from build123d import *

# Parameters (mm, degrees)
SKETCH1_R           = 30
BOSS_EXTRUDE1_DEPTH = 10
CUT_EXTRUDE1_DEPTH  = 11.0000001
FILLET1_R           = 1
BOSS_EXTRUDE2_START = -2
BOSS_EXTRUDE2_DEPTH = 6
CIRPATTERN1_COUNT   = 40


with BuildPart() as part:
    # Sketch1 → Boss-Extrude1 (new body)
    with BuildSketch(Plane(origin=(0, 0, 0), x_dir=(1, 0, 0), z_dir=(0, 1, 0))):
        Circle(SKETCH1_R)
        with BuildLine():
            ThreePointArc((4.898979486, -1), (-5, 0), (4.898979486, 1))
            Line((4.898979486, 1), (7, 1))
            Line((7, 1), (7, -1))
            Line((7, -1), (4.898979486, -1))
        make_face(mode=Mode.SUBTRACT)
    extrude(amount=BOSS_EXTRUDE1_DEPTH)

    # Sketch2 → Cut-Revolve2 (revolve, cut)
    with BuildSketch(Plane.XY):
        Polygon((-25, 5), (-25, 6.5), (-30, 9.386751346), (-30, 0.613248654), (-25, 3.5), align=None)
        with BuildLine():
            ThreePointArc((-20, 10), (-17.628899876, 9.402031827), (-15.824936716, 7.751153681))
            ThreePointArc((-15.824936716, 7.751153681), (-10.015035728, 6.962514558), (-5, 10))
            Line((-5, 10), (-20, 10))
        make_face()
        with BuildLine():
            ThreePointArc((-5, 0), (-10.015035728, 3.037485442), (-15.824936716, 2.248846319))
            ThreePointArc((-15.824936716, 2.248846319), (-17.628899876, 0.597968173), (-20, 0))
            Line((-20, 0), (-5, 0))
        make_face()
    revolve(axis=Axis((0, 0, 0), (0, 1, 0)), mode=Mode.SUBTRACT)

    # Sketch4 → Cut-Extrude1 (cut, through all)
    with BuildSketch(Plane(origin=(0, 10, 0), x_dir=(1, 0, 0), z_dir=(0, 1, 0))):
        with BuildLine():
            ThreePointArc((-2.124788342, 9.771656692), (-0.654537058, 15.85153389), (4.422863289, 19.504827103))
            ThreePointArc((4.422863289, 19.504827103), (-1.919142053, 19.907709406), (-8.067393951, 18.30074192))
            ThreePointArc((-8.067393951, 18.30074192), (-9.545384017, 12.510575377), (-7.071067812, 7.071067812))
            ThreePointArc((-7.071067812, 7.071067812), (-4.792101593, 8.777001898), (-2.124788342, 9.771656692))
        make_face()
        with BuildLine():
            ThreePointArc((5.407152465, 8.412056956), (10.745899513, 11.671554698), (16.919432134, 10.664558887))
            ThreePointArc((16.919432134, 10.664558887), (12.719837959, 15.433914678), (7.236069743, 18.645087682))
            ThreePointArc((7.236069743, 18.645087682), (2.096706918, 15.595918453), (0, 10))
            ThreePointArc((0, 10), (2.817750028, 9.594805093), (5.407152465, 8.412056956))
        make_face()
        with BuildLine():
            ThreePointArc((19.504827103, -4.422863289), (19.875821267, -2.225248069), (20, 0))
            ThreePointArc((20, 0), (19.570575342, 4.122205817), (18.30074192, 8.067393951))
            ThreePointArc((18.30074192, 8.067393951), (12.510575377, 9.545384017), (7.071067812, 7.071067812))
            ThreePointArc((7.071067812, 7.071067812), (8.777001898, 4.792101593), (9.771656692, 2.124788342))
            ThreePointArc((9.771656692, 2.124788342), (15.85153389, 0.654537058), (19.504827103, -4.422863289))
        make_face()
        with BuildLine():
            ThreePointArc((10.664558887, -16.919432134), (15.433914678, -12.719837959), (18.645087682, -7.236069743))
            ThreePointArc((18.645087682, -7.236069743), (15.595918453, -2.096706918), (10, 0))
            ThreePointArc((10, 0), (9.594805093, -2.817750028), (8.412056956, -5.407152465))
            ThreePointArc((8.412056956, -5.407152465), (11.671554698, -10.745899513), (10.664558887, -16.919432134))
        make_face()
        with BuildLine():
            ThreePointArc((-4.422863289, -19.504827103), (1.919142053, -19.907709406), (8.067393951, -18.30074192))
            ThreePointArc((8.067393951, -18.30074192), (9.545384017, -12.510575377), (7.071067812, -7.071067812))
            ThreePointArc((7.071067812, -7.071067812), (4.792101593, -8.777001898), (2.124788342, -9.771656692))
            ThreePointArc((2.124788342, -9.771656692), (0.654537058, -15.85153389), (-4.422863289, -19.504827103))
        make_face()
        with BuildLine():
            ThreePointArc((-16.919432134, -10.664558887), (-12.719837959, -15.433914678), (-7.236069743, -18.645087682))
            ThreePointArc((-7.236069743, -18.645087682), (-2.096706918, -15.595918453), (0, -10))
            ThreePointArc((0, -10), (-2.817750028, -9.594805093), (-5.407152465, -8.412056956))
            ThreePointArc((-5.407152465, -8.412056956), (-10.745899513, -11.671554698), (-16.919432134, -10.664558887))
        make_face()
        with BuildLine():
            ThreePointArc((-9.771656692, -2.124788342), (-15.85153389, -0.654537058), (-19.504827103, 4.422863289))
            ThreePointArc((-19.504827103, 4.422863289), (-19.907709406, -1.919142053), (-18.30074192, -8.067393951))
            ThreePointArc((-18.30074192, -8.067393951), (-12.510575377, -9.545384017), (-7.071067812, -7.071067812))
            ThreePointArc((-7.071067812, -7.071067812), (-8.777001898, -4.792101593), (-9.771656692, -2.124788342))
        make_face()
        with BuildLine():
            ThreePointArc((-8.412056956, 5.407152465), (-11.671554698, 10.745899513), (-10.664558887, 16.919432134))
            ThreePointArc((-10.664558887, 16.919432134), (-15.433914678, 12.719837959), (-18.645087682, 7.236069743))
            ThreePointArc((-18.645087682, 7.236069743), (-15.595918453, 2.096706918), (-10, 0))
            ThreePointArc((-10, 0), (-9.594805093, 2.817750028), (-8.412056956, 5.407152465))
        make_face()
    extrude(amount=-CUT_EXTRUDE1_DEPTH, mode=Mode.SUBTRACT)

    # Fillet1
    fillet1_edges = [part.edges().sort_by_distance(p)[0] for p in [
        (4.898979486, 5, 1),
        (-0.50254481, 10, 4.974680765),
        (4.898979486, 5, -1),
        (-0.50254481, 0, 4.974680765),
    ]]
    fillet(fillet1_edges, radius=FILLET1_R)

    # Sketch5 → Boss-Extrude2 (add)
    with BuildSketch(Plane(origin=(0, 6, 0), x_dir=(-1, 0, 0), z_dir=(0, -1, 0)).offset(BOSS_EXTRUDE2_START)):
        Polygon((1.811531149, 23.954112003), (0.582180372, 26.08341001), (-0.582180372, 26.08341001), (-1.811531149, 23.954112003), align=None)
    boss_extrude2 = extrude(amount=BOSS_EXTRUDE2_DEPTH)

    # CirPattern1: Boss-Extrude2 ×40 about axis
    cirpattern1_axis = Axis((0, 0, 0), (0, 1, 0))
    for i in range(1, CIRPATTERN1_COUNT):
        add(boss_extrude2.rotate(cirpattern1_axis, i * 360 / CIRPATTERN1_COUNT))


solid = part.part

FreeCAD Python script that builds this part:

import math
import FreeCAD as App
import Part
import Sketcher
from FreeCAD import Vector
Q = App.Units.Quantity


def edges_at(feature, points):
    """Names of the edges that pass closest to the given points."""
    edges = feature.Shape.Edges
    near = lambda p: min(range(len(edges)), key=lambda i: edges[i].distToShape(Part.Vertex(*p))[0])
    return sorted({f"Edge{near(p) + 1}" for p in points})


def add_polygon(sketch, points):
    """Adds a closed chain of lines whose ends are joined by coincident constraints."""
    first, n = sketch.GeometryCount, len(points)
    for a, b in zip(points, points[1:] + points[:1]):
        sketch.addGeometry(Part.LineSegment(App.Vector(*a, 0), App.Vector(*b, 0)), False)
    for i in range(n):
        sketch.addConstraint(Sketcher.Constraint("Coincident", first + i, 2, first + (i + 1) % n, 1))

doc = App.newDocument("Part")
body = doc.addObject("PartDesign::Body", "Body")

# Sketch on XZ plane
sketch1 = body.newObject("Sketcher::SketchObject", "Sketch")
sketch1.AttachmentSupport = (doc.getObject("XZ_Plane"), [""])
sketch1.MapMode = "FlatFace"
sketch1.addGeometry([
    Part.Circle(Vector(0, 0, 0), Vector(0, 0, 1), 30),  # 0
    Part.LineSegment(Vector(7, 1, 0), Vector(4.9, 1, 0)),  # 1
    Part.ArcOfCircle(Part.Circle(Vector(0, 0, 0), Vector(0, 0, 1), 5), math.radians(12), math.radians(348)),  # 2
    Part.LineSegment(Vector(4.9, -1, 0), Vector(7, -1, 0)),  # 3
    Part.LineSegment(Vector(7, -1, 0), Vector(7, 1, 0)),  # 4
], False)
sketch1.addConstraint([
    Sketcher.Constraint("Coincident", 1, 2, 2, 1),
    Sketcher.Constraint("Coincident", 2, 2, 3, 1),
    Sketcher.Constraint("Coincident", 3, 2, 4, 1),
    Sketcher.Constraint("Coincident", 4, 2, 1, 1),
    Sketcher.Constraint("Horizontal", 1),
    Sketcher.Constraint("Horizontal", 3),
    Sketcher.Constraint("Vertical", 4),
    Sketcher.Constraint("Coincident", 0, 3, -1, 1),
    Sketcher.Constraint("Coincident", 2, 3, -1, 1),
    Sketcher.Constraint("Vertical", 1, 2, 2, 2),
    Sketcher.Constraint("Diameter", 0, 60.0),
    Sketcher.Constraint("Radius", 2, 5.0),
    Sketcher.Constraint("DistanceY", 4, 1, 4, 2, 2.0),
    Sketcher.Constraint("DistanceX", -1, 1, 3, 2, 7.0),
])
pad1 = body.newObject("PartDesign::Pad", "Pad")
pad1.Profile = sketch1
pad1.Length = 10
pad1.Reversed = True

# Sketch on XY plane
sketch2 = body.newObject("Sketcher::SketchObject", "Sketch001")
sketch2.AttachmentSupport = (doc.getObject("XY_Plane"), [""])
sketch2.MapMode = "FlatFace"
add_polygon(sketch2, [(-25, 6.5), (-30, 9.4), (-30, 0.6), (-25, 3.5)])  # lines 0-3
sketch2.addGeometry(Part.ArcOfCircle(Part.Circle(Vector(-20, 5, 0), Vector(0, 0, 1), 5), math.radians(33), math.radians(90)), False)  # 4
sketch2.addGeometry(Part.ArcOfCircle(Part.Circle(Vector(-11.8, 15.6, 0), Vector(0, 0, 1), 8.8), math.radians(-117), math.radians(-39)), False)  # 5
sketch2.addGeometry(Part.LineSegment(Vector(-5, 10, 0), Vector(-20, 10, 0)), False)  # 6
sketch2.addGeometry(Part.ArcOfCircle(Part.Circle(Vector(-11.8, -5.6, 0), Vector(0, 0, 1), 8.8), math.radians(39), math.radians(117)), False)  # 7
sketch2.addGeometry(Part.ArcOfCircle(Part.Circle(Vector(-20, 5, 0), Vector(0, 0, 1), 5), math.radians(-90), math.radians(-33)), False)  # 8
sketch2.addGeometry(Part.LineSegment(Vector(-20, 0, 0), Vector(-5, 0, 0)), False)  # 9
sketch2.addConstraint([
    Sketcher.Constraint("Coincident", 4, 1, 5, 1),
    Sketcher.Constraint("Coincident", 5, 2, 6, 1),
    Sketcher.Constraint("Tangent", 6, 2, 4, 2),
    Sketcher.Constraint("Coincident", 7, 2, 8, 2),
    Sketcher.Constraint("Tangent", 8, 1, 9, 1),
    Sketcher.Constraint("Coincident", 9, 2, 7, 1),
    Sketcher.Constraint("Vertical", 1),
    Sketcher.Constraint("Vertical", 3),
    Sketcher.Constraint("Horizontal", 6),
    Sketcher.Constraint("Horizontal", 9),
    Sketcher.Constraint("Coincident", 8, 3, 4, 3),
    Sketcher.Constraint("Equal", 5, 7),
    Sketcher.Constraint("Equal", 4, 8),
    Sketcher.Constraint("PointOnObject", 8, 1, -1),
    Sketcher.Constraint("Vertical", 5, 3, 7, 3),
    Sketcher.Constraint("Vertical", 4, 1, 7, 2),
    Sketcher.Constraint("Equal", 0, 2),
    Sketcher.Constraint("Radius", 4, 5.0),
    Sketcher.Constraint("DistanceX", 6, 2, 6, 1, 15.0),
    Sketcher.Constraint("DistanceY", 3, 1, 3, 2, 3.0),
    Sketcher.Constraint("Angle", 0, Q("150 deg")),
    Sketcher.Constraint("DistanceX", 4, 3, -1, 1, 20.0),
    Sketcher.Constraint("DistanceX", 0, 2, -1, 1, 30.0),
    Sketcher.Constraint("DistanceX", 2, 2, -1, 1, 25.0),
    Sketcher.Constraint("DistanceY", -1, 1, 2, 2, 3.5),
    Sketcher.Constraint("Radius", 5, 8.796956),
    Sketcher.Constraint("DistanceX", 5, 3, -1, 1, 11.804371),
])
groove = body.newObject("PartDesign::Groove", "Groove")
groove.Profile = sketch2
groove.ReferenceAxis = (sketch2, ["V_Axis"])
groove.Angle = 360

# Sketch on XZ plane
sketch3 = body.newObject("Sketcher::SketchObject", "Sketch002")
sketch3.AttachmentSupport = (doc.getObject("XZ_Plane"), [""])
sketch3.MapMode = "FlatFace"
sketch3.AttachmentOffset = App.Placement(Vector(0, 0, -10), App.Rotation())
sketch3.addGeometry([
    Part.ArcOfCircle(Part.Circle(Vector(6.8, -10.8, 0), Vector(0, 0, 1), 9), math.radians(173), math.radians(255)),  # 0
    Part.ArcOfCircle(Part.Circle(Vector(0, 0, 0), Vector(0, 0, 1), 20), math.radians(-114), math.radians(-77)),  # 1
    Part.ArcOfCircle(Part.Circle(Vector(-0.6, -13.3, 0), Vector(0, 0, 1), 9), math.radians(136), math.radians(214)),  # 2
    Part.ArcOfCircle(Part.Circle(Vector(0, 0, 0), Vector(0, 0, 1), 10), math.radians(-135), math.radians(-102)),  # 3
    Part.ArcOfCircle(Part.Circle(Vector(12.5, -2.8, 0), Vector(0, 0, 1), 9), math.radians(-142), math.radians(-60)),  # 4
    Part.ArcOfCircle(Part.Circle(Vector(0, 0, 0), Vector(0, 0, 1), 20), math.radians(-69), math.radians(-32)),  # 5
    Part.ArcOfCircle(Part.Circle(Vector(9, -9.8, 0), Vector(0, 0, 1), 9), math.radians(-179), math.radians(-101)),  # 6
    Part.ArcOfCircle(Part.Circle(Vector(0, 0, 0), Vector(0, 0, 1), 10), math.radians(-90), math.radians(-57)),  # 7
    Part.ArcOfCircle(Part.Circle(Vector(0, 0, 0), Vector(0, 0, 1), 20), math.radians(0), math.radians(12.78)),  # 8
    Part.ArcOfCircle(Part.Circle(Vector(0, 0, 0), Vector(0, 0, 1), 20), math.radians(-24), math.radians(0)),  # 9
    Part.ArcOfCircle(Part.Circle(Vector(13.3, -0.6, 0), Vector(0, 0, 1), 9), math.radians(-134), math.radians(-56)),  # 10
    Part.ArcOfCircle(Part.Circle(Vector(0, 0, 0), Vector(0, 0, 1), 10), math.radians(-45), math.radians(-12)),  # 11
    Part.ArcOfCircle(Part.Circle(Vector(10.8, 6.8, 0), Vector(0, 0, 1), 9), math.radians(-97), math.radians(-15)),  # 12
    Part.ArcOfCircle(Part.Circle(Vector(0, 0, 0), Vector(0, 0, 1), 20), math.radians(21), math.radians(58)),  # 13
    Part.ArcOfCircle(Part.Circle(Vector(9.8, 9, 0), Vector(0, 0, 1), 9), math.radians(-89), math.radians(-11)),  # 14
    Part.ArcOfCircle(Part.Circle(Vector(0, 0, 0), Vector(0, 0, 1), 10), math.radians(0), math.radians(33)),  # 15
    Part.ArcOfCircle(Part.Circle(Vector(2.8, 12.5, 0), Vector(0, 0, 1), 9), math.radians(-52), math.radians(30)),  # 16
    Part.ArcOfCircle(Part.Circle(Vector(0, 0, 0), Vector(0, 0, 1), 20), math.radians(66), math.radians(103)),  # 17
    Part.ArcOfCircle(Part.Circle(Vector(0.6, 13.3, 0), Vector(0, 0, 1), 9), math.radians(-44), math.radians(34)),  # 18
    Part.ArcOfCircle(Part.Circle(Vector(0, 0, 0), Vector(0, 0, 1), 10), math.radians(45), math.radians(78)),  # 19
    Part.ArcOfCircle(Part.Circle(Vector(-6.8, 10.8, 0), Vector(0, 0, 1), 9), math.radians(-7), math.radians(75)),  # 20
    Part.ArcOfCircle(Part.Circle(Vector(0, 0, 0), Vector(0, 0, 1), 20), math.radians(111), math.radians(148)),  # 21
    Part.ArcOfCircle(Part.Circle(Vector(-9, 9.8, 0), Vector(0, 0, 1), 9), math.radians(1), math.radians(79)),  # 22
    Part.ArcOfCircle(Part.Circle(Vector(0, 0, 0), Vector(0, 0, 1), 10), math.radians(90), math.radians(123)),  # 23
    Part.ArcOfCircle(Part.Circle(Vector(-12.5, 2.8, 0), Vector(0, 0, 1), 9), math.radians(38), math.radians(120)),  # 24
    Part.ArcOfCircle(Part.Circle(Vector(-10.8, -6.8, 0), Vector(0, 0, 1), 9), math.radians(83), math.radians(165)),  # 25
    Part.ArcOfCircle(Part.Circle(Vector(0, 0, 0), Vector(0, 0, 1), 20), math.radians(156), math.radians(193)),  # 26
    Part.ArcOfCircle(Part.Circle(Vector(-13.3, 0.6, 0), Vector(0, 0, 1), 9), math.radians(46), math.radians(124)),  # 27
    Part.ArcOfCircle(Part.Circle(Vector(0, 0, 0), Vector(0, 0, 1), 10), math.radians(135), math.radians(168)),  # 28
    Part.ArcOfCircle(Part.Circle(Vector(-2.8, -12.5, 0), Vector(0, 0, 1), 9), math.radians(128), math.radians(210)),  # 29
    Part.ArcOfCircle(Part.Circle(Vector(0, 0, 0), Vector(0, 0, 1), 20), math.radians(-159), math.radians(-122)),  # 30
    Part.ArcOfCircle(Part.Circle(Vector(-9.8, -9, 0), Vector(0, 0, 1), 9), math.radians(91), math.radians(169)),  # 31
    Part.ArcOfCircle(Part.Circle(Vector(0, 0, 0), Vector(0, 0, 1), 10), math.radians(-180), math.radians(-147)),  # 32
], False)
sketch3.addConstraint([
    Sketcher.Constraint("Coincident", 0, 2, 1, 2),
    Sketcher.Constraint("Coincident", 1, 1, 2, 2),
    Sketcher.Constraint("Coincident", 2, 1, 3, 1),
    Sketcher.Constraint("Coincident", 3, 2, 0, 1),
    Sketcher.Constraint("Coincident", 4, 2, 5, 2),
    Sketcher.Constraint("Coincident", 5, 1, 6, 2),
    Sketcher.Constraint("Coincident", 6, 1, 7, 1),
    Sketcher.Constraint("Coincident", 7, 2, 4, 1),
    Sketcher.Constraint("Tangent", 8, 1, 9, 2),
    Sketcher.Constraint("Coincident", 9, 1, 10, 2),
    Sketcher.Constraint("Coincident", 10, 1, 11, 1),
    Sketcher.Constraint("Coincident", 11, 2, 12, 1),
    Sketcher.Constraint("Coincident", 12, 2, 8, 2),
    Sketcher.Constraint("Coincident", 13, 1, 14, 2),
    Sketcher.Constraint("Coincident", 14, 1, 15, 1),
    Sketcher.Constraint("Coincident", 15, 2, 16, 1),
    Sketcher.Constraint("Coincident", 16, 2, 13, 2),
    Sketcher.Constraint("Coincident", 17, 1, 18, 2),
    Sketcher.Constraint("Coincident", 18, 1, 19, 1),
    Sketcher.Constraint("Coincident", 19, 2, 20, 1),
    Sketcher.Constraint("Coincident", 20, 2, 17, 2),
    Sketcher.Constraint("Coincident", 21, 1, 22, 2),
    Sketcher.Constraint("Coincident", 22, 1, 23, 1),
    Sketcher.Constraint("Coincident", 23, 2, 24, 1),
    Sketcher.Constraint("Coincident", 24, 2, 21, 2),
    Sketcher.Constraint("Coincident", 25, 2, 26, 2),
    Sketcher.Constraint("Coincident", 26, 1, 27, 2),
    Sketcher.Constraint("Coincident", 27, 1, 28, 1),
    Sketcher.Constraint("Coincident", 28, 2, 25, 1),
    Sketcher.Constraint("Coincident", 29, 2, 30, 2),
    Sketcher.Constraint("Coincident", 30, 1, 31, 2),
    Sketcher.Constraint("Coincident", 31, 1, 32, 1),
    Sketcher.Constraint("Coincident", 32, 2, 29, 1),
    Sketcher.Constraint("Coincident", 1, 3, -1, 1),
    Sketcher.Constraint("Coincident", 3, 3, -1, 1),
    Sketcher.Constraint("Coincident", 5, 3, -1, 1),
    Sketcher.Constraint("Coincident", 7, 3, -1, 1),
    Sketcher.Constraint("Coincident", 8, 3, -1, 1),
    Sketcher.Constraint("Coincident", 11, 3, -1, 1),
    Sketcher.Constraint("Coincident", 13, 3, -1, 1),
    Sketcher.Constraint("Coincident", 15, 3, -1, 1),
    Sketcher.Constraint("Coincident", 17, 3, -1, 1),
    Sketcher.Constraint("Coincident", 19, 3, -1, 1),
    Sketcher.Constraint("Coincident", 21, 3, -1, 1),
    Sketcher.Constraint("Coincident", 23, 3, -1, 1),
    Sketcher.Constraint("Coincident", 26, 3, -1, 1),
    Sketcher.Constraint("Coincident", 28, 3, -1, 1),
    Sketcher.Constraint("Coincident", 30, 3, -1, 1),
    Sketcher.Constraint("Coincident", 32, 3, -1, 1),
    Sketcher.Constraint("Equal", 0, 2),
    Sketcher.Constraint("Equal", 2, 4),
    Sketcher.Constraint("Equal", 1, 5),
    Sketcher.Constraint("Equal", 4, 6),
    Sketcher.Constraint("Equal", 3, 7),
    Sketcher.Constraint("Equal", 5, 8),
    Sketcher.Constraint("Equal", 8, 9),
    Sketcher.Constraint("Equal", 6, 10),
    Sketcher.Constraint("Equal", 7, 11),
    Sketcher.Constraint("Equal", 10, 12),
    Sketcher.Constraint("Equal", 9, 13),
    Sketcher.Constraint("Equal", 12, 14),
    Sketcher.Constraint("Equal", 11, 15),
    Sketcher.Constraint("Equal", 14, 16),
    Sketcher.Constraint("Equal", 13, 17),
    Sketcher.Constraint("Equal", 16, 18),
    Sketcher.Constraint("Equal", 15, 19),
    Sketcher.Constraint("Equal", 18, 20),
    Sketcher.Constraint("Equal", 17, 21),
    Sketcher.Constraint("Equal", 20, 22),
    Sketcher.Constraint("Equal", 19, 23),
    Sketcher.Constraint("Equal", 22, 24),
    Sketcher.Constraint("Equal", 24, 25),
    Sketcher.Constraint("Equal", 21, 26),
    Sketcher.Constraint("Equal", 25, 27),
    Sketcher.Constraint("Equal", 23, 28),
    Sketcher.Constraint("Equal", 27, 29),
    Sketcher.Constraint("Equal", 26, 30),
    Sketcher.Constraint("Equal", 29, 31),
    Sketcher.Constraint("Equal", 28, 32),
    Sketcher.Constraint("Symmetric", 2, 3, 18, 3, -1, 1),
    Sketcher.Constraint("Symmetric", 0, 3, 20, 3, -1, 1),
    Sketcher.Constraint("Symmetric", 6, 3, 22, 3, -1, 1),
    Sketcher.Constraint("Symmetric", 4, 3, 24, 3, -1, 1),
    Sketcher.Constraint("Symmetric", 12, 3, 25, 3, -1, 1),
    Sketcher.Constraint("Symmetric", 10, 3, 27, 3, -1, 1),
    Sketcher.Constraint("Symmetric", 16, 3, 29, 3, -1, 1),
    Sketcher.Constraint("Symmetric", 14, 3, 31, 3, -1, 1),
    Sketcher.Constraint("PointOnObject", 6, 1, -2),
    Sketcher.Constraint("PointOnObject", 8, 1, -1),
    Sketcher.Constraint("PointOnObject", 14, 1, -1),
    Sketcher.Constraint("Horizontal", 2, 1, 10, 1),
    Sketcher.Constraint("Radius", 0, 9.0),
    Sketcher.Constraint("Radius", 1, 20.0),
    Sketcher.Constraint("Radius", 3, 10.0),
    Sketcher.Constraint("DistanceX", 2, 3, -1, 1, 0.580599),
    Sketcher.Constraint("DistanceY", 10, 3, -1, 1, 0.580599),
    Sketcher.Constraint("DistanceY", 1, 1, -1, 1, 18.300742),
    Sketcher.Constraint("DistanceX", 3, 2, -1, 1, 2.124788),
    Sketcher.Constraint("DistanceY", 4, 2, -1, 1, 10.664559),
    Sketcher.Constraint("DistanceX", -1, 1, 5, 1, 7.23607),
    Sketcher.Constraint("DistanceY", 11, 2, -1, 1, 2.124788),
    Sketcher.Constraint("DistanceY", -1, 1, 13, 1, 7.23607),
    Sketcher.Constraint("DistanceX", -1, 1, 16, 2, 10.664559),
    Sketcher.Constraint("DistanceX", -1, 1, 0, 3, 6.813004),
    Sketcher.Constraint("DistanceX", -1, 1, 4, 3, 12.474077),
    Sketcher.Constraint("DistanceX", -1, 1, 12, 3, 10.828006),
    Sketcher.Constraint("DistanceX", -1, 1, 16, 3, 2.839035),
])
pocket1 = body.newObject("PartDesign::Pocket", "Pocket")
pocket1.Profile = sketch3
pocket1.Type = "ThroughAll"
pocket1.Reversed = True
doc.recompute()

fillet = body.newObject("PartDesign::Fillet", "Fillet")
fillet.Base = (pocket1, edges_at(pocket1, [
    (4.899, 5, 1),
    (-0.503, 10, 4.975),
    (4.899, 5, -1),
    (-0.503, 0, 4.975),
]))
fillet.Radius = 1

# Sketch on XZ plane
sketch4 = body.newObject("Sketcher::SketchObject", "Sketch003")
sketch4.AttachmentSupport = (doc.getObject("XZ_Plane"), [""])
sketch4.MapMode = "FlatFace"
sketch4.AttachmentOffset = App.Placement(Vector(0, 0, -8), App.Rotation())
add_polygon(sketch4, [(-1.8, -24), (-0.6, -26.1), (0.6, -26.1), (1.8, -24)])  # lines 0-3
sketch4.addConstraint([
    Sketcher.Constraint("Horizontal", 1),
    Sketcher.Constraint("Horizontal", 3),
    Sketcher.Constraint("Equal", 0, 2),
    Sketcher.Constraint("Angle", 0, Q("-60 deg")),
    Sketcher.Constraint("Distance", 0, 2.458702),
    Sketcher.Constraint("DistanceX", 1, 1, 1, 2, 1.164361),
    Sketcher.Constraint("DistanceX", 0, 2, -1, 1, 0.58218),
    Sketcher.Constraint("DistanceY", 0, 2, -1, 1, 26.08341),
])
pad2 = body.newObject("PartDesign::Pad", "Pad001")
pad2.Profile = sketch4
pad2.Length = 6
doc.recompute()

polarpattern = body.newObject("PartDesign::PolarPattern", "PolarPattern")
polarpattern.Originals = [pad2]
polarpattern.Axis = (doc.getObject("Y_Axis"), [""])
polarpattern.Angle = 360
polarpattern.Occurrences = 40
body.Tip = polarpattern

doc.recompute()
